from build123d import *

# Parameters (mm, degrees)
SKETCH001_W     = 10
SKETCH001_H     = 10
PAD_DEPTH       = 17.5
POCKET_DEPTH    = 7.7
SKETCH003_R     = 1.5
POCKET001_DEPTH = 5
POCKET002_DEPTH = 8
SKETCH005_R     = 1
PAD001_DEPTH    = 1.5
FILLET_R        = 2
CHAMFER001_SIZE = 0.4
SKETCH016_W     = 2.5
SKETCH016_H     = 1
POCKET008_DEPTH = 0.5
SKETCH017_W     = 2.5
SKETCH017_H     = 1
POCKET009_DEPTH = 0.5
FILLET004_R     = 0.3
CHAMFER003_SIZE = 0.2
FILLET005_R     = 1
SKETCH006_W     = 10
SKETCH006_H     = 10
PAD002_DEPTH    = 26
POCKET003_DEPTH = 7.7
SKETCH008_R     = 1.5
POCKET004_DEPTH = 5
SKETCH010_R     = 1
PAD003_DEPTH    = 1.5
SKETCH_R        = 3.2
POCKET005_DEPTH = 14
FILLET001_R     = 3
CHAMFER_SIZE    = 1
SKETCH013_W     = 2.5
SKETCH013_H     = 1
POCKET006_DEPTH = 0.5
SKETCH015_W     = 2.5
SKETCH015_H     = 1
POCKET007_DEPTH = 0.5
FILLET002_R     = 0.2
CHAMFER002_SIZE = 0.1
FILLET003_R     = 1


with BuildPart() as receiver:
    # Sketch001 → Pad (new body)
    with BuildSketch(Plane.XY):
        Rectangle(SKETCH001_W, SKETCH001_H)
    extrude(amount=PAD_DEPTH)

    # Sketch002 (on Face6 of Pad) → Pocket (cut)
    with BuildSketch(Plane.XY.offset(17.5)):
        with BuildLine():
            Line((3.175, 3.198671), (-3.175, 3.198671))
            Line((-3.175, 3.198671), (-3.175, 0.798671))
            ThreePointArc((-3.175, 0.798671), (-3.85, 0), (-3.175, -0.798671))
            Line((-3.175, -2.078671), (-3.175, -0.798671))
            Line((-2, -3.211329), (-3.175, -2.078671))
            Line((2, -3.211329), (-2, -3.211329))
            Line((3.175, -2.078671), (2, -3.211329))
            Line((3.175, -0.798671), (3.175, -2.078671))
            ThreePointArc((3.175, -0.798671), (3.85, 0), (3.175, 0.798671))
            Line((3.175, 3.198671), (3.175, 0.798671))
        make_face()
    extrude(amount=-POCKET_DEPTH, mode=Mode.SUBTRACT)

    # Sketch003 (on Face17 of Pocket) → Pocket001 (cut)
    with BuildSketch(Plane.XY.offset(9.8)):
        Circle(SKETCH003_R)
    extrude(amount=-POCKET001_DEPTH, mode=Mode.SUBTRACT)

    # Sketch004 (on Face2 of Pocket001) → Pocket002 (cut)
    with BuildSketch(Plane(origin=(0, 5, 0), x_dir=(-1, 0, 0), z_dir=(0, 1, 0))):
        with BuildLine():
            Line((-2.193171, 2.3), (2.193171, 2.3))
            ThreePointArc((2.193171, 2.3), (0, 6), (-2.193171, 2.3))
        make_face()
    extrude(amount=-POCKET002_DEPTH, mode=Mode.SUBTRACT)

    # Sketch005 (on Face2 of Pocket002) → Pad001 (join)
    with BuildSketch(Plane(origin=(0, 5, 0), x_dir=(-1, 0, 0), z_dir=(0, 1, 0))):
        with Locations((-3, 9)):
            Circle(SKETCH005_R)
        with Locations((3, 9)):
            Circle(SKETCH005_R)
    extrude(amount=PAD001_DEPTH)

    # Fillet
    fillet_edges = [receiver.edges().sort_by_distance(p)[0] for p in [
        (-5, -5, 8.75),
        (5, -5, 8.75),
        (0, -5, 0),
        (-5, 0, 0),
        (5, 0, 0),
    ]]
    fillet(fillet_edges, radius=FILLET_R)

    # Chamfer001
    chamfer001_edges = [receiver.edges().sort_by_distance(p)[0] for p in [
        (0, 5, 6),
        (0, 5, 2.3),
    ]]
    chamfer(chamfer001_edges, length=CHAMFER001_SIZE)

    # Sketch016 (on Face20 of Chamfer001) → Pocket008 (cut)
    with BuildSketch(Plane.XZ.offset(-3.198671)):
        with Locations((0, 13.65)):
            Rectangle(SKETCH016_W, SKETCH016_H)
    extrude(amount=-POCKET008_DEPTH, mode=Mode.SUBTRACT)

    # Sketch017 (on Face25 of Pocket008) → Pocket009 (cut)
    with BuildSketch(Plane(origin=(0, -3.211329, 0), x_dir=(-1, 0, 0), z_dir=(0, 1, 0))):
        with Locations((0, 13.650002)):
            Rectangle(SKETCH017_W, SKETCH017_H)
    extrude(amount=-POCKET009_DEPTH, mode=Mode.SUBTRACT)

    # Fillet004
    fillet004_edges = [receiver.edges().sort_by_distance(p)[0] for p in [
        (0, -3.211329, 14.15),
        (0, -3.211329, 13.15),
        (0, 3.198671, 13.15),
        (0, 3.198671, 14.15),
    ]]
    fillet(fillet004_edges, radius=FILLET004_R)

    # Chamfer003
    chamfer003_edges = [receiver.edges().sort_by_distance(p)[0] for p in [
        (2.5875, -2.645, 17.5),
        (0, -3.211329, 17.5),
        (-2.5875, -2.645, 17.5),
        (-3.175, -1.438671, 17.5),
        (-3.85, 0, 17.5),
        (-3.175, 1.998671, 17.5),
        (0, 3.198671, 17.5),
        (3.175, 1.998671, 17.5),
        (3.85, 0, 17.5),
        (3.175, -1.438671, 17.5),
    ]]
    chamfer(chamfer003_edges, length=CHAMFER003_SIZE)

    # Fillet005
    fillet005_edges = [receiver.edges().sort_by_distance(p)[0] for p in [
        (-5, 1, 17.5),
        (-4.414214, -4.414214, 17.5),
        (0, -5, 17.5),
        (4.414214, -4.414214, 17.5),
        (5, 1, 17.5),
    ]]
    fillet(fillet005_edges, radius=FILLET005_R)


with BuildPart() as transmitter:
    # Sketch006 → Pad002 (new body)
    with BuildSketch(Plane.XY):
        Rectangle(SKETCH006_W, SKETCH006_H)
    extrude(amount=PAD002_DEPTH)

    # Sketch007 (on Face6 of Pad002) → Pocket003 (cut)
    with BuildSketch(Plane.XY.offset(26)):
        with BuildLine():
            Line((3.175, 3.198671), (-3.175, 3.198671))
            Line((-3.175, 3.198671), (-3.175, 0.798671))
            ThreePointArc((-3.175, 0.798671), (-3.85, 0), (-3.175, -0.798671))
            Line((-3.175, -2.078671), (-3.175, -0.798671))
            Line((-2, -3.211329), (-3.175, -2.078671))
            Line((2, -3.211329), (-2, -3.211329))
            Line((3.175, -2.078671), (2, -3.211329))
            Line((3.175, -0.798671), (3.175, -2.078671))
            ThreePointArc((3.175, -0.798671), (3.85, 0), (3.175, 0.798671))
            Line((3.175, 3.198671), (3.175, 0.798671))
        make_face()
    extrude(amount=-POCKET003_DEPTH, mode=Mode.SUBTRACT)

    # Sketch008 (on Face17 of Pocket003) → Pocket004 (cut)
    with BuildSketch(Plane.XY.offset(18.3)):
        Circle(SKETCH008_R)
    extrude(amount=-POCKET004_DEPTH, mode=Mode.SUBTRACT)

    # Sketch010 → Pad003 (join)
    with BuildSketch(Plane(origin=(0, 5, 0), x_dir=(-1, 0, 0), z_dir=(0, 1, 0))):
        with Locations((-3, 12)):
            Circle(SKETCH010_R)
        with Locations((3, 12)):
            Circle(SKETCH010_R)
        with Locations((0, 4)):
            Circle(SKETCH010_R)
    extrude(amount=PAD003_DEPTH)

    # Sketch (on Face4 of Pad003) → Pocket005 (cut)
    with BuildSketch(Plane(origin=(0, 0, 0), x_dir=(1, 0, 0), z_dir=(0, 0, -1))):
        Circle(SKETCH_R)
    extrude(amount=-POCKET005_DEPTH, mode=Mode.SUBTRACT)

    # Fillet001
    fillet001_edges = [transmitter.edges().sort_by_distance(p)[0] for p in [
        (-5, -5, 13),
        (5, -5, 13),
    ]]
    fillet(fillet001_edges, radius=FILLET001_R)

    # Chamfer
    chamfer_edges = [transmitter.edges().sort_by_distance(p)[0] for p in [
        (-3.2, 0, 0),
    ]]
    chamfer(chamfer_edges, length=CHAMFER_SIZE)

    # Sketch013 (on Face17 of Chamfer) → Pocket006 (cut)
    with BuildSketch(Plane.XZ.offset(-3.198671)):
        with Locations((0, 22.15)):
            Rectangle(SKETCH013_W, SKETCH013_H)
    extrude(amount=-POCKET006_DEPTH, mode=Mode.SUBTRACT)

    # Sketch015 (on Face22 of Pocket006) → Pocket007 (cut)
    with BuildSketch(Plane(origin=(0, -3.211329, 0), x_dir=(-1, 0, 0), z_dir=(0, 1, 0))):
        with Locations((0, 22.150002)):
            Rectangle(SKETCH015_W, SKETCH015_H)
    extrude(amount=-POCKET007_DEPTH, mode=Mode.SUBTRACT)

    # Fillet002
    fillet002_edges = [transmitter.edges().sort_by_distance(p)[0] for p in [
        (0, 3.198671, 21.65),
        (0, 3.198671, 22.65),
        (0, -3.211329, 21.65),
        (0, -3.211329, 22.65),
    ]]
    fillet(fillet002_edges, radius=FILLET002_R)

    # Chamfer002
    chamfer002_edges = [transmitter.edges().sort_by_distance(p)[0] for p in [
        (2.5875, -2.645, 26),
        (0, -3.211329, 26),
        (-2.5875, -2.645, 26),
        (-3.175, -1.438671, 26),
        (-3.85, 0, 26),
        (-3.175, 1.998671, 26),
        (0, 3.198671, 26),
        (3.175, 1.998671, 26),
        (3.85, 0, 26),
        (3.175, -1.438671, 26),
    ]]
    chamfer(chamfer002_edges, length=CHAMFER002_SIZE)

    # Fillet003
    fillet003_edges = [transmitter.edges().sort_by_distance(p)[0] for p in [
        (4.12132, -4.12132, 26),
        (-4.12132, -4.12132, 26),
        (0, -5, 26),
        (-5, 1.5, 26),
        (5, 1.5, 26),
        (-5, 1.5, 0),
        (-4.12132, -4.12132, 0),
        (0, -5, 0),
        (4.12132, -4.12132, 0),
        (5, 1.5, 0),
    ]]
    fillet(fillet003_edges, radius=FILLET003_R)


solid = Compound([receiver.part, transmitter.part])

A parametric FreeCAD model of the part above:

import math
import FreeCAD as App
import Part
import Sketcher
from FreeCAD import Vector
Q = App.Units.Quantity


def edges_at(feature, points):
    """Names of the edges that pass closest to the given points."""
    edges = feature.Shape.Edges
    near = lambda p: min(range(len(edges)), key=lambda i: edges[i].distToShape(Part.Vertex(*p))[0])
    return sorted({f"Edge{near(p) + 1}" for p in points})

doc = App.newDocument("Part")
params = doc.addObject("Spreadsheet::Sheet", "Params")
for row, (alias, value) in enumerate([
    ("sketch1_width", "10 mm"),
    ("pad1_length", "17.5 mm"),
    ("sketch2_width", "4 mm"),
    ("sketch2_radius", "0.81 mm"),
    ("sketch2_height", "2.4 mm"),
    ("sketch2_width2", "6.35 mm"),
    ("sketch2_height2", "1.28 mm"),
    ("pocket1_length", "7.7 mm"),
    ("sketch3_diameter", "3 mm"),
    ("pocket2_length", "5 mm"),
    ("sketch4_radius", "2.5 mm"),
    ("pocket3_length", "8 mm"),
    ("sketch5_diameter", "2 mm"),
    ("pad2_length", "1.5 mm"),
    ("fillet_radius", "2 mm"),
    ("chamfer_size", "0.4 mm"),
    ("sketch6_height", "1 mm"),
    ("sketch6_width", "2.5 mm"),
    ("pocket4_length", "0.5 mm"),
    ("sketch7_height", "1 mm"),
    ("sketch7_width", "2.5 mm"),
    ("pocket5_length", "0.5 mm"),
    ("fillet2_radius", "0.3 mm"),
    ("chamfer2_size", "0.2 mm"),
    ("fillet3_radius", "1 mm"),
    ("sketch8_width", "10 mm"),
    ("pad3_length", "26 mm"),
    ("sketch9_width", "4 mm"),
    ("sketch9_radius", "0.81 mm"),
    ("sketch9_height", "2.4 mm"),
    ("sketch9_width2", "6.35 mm"),
    ("sketch9_height2", "1.28 mm"),
    ("pocket6_length", "7.7 mm"),
    ("sketch10_diameter", "3 mm"),
    ("pocket7_length", "5 mm"),
    ("sketch11_diameter", "2 mm"),
    ("pad4_length", "1.5 mm"),
    ("sketch12_diameter", "6.4 mm"),
    ("pocket8_length", "14 mm"),
    ("fillet4_radius", "3 mm"),
    ("chamfer3_size", "1 mm"),
    ("sketch13_height", "1 mm"),
    ("sketch13_width", "2.5 mm"),
    ("pocket9_length", "0.5 mm"),
    ("sketch14_height", "1 mm"),
    ("sketch14_width", "2.5 mm"),
    ("pocket10_length", "0.5 mm"),
    ("fillet5_radius", "0.2 mm"),
    ("chamfer4_size", "0.1 mm"),
    ("fillet6_radius", "1 mm"),
], start=1):
    params.set(f"A{row}", alias)
    params.set(f"B{row}", "=" + value)
    params.setAlias(f"B{row}", alias)

body = doc.addObject("PartDesign::Body", "Body")

# Sketch on XY plane
sketch1 = body.newObject("Sketcher::SketchObject", "Sketch")
sketch1.AttachmentSupport = (doc.getObject("XY_Plane"), [""])
sketch1.MapMode = "FlatFace"
sketch1.addGeometry([
    Part.LineSegment(Vector(-5, 5, 0), Vector(-5, -5, 0)),
    Part.LineSegment(Vector(-5, -5, 0), Vector(5, -5, 0)),
    Part.LineSegment(Vector(5, -5, 0), Vector(5, 5, 0)),
    Part.LineSegment(Vector(5, 5, 0), Vector(-5, 5, 0)),
], False)
sketch1.addConstraint([
    Sketcher.Constraint("Coincident", 0, 2, 1, 1),
    Sketcher.Constraint("Coincident", 1, 2, 2, 1),
    Sketcher.Constraint("Coincident", 2, 2, 3, 1),
    Sketcher.Constraint("Coincident", 3, 2, 0, 1),
    Sketcher.Constraint("Vertical", 0),
    Sketcher.Constraint("Horizontal", 1),
    Sketcher.Constraint("Vertical", 2),
    Sketcher.Constraint("Horizontal", 3),
    Sketcher.Constraint("Symmetric", 0, 2, 2, 2, -1, 1),
    Sketcher.Constraint("Equal", 3, 0),
    Sketcher.Constraint("DistanceX", 1, 1, 1, 2, Q("10 mm")),
])
sketch1.setExpression("Constraints[10]", "Params.sketch1_width")
pad1 = body.newObject("PartDesign::Pad", "Pad")
pad1.Profile = sketch1
pad1.setExpression("Length", "Params.pad1_length")

# Sketch on XY plane
sketch2 = body.newObject("Sketcher::SketchObject", "Sketch001")
sketch2.AttachmentSupport = (doc.getObject("XY_Plane"), [""])
sketch2.MapMode = "FlatFace"
sketch2.AttachmentOffset = App.Placement(Vector(0, 0, 17.5), App.Rotation())
sketch2.addGeometry([
    Part.LineSegment(Vector(3.2, 3.2, 0), Vector(-3.2, 3.2, 0)),  # 0
    Part.LineSegment(Vector(-3.2, 3.2, 0), Vector(-3.2, 0.8, 0)),  # 1
    Part.ArcOfCircle(Part.Circle(Vector(-3, 0, 0), Vector(0, 0, 1), 0.8), math.radians(100), math.radians(260)),  # 2
    Part.LineSegment(Vector(-3.2, -0.8, 0), Vector(-3.2, -2.1, 0)),  # 3
    Part.LineSegment(Vector(-3.2, -2.1, 0), Vector(-2, -3.2, 0)),  # 4
    Part.LineSegment(Vector(-2, -3.2, 0), Vector(2, -3.2, 0)),  # 5
    Part.LineSegment(Vector(2, -3.2, 0), Vector(3.2, -2.1, 0)),  # 6
    Part.LineSegment(Vector(3.2, -2.1, 0), Vector(3.2, -0.8, 0)),  # 7
    Part.ArcOfCircle(Part.Circle(Vector(3, 0, 0), Vector(0, 0, 1), 0.8), math.radians(-80), math.radians(80)),  # 8
    Part.LineSegment(Vector(3.2, 0.8, 0), Vector(3.2, 3.2, 0)),  # 9
], False)
sketch2.addConstraint([
    Sketcher.Constraint("Coincident", 0, 2, 1, 1),
    Sketcher.Constraint("Coincident", 1, 2, 2, 1),
    Sketcher.Constraint("Coincident", 2, 2, 3, 1),
    Sketcher.Constraint("Coincident", 3, 2, 4, 1),
    Sketcher.Constraint("Coincident", 4, 2, 5, 1),
    Sketcher.Constraint("Coincident", 5, 2, 6, 1),
    Sketcher.Constraint("Coincident", 6, 2, 7, 1),
    Sketcher.Constraint("Coincident", 7, 2, 8, 1),
    Sketcher.Constraint("Coincident", 8, 2, 9, 1),
    Sketcher.Constraint("Coincident", 9, 2, 0, 1),
    Sketcher.Constraint("Horizontal", 0),
    Sketcher.Constraint("Vertical", 1),
    Sketcher.Constraint("Vertical", 3),
    Sketcher.Constraint("Horizontal", 5),
    Sketcher.Constraint("Vertical", 7),
    Sketcher.Constraint("Vertical", 9),
    Sketcher.Constraint("Equal", 2, 8),
    Sketcher.Constraint("Symmetric", 2, 3, 8, 3, -1, 1),
    Sketcher.Constraint("Symmetric", 3, 2, 6, 2, -2),
    Sketcher.Constraint("Symmetric", 1, 2, 8, 2, -2),
    Sketcher.Constraint("Vertical", 1, 2, 2, 2),
    Sketcher.Constraint("Equal", 4, 6),
    Sketcher.Constraint("DistanceX", 5, 1, 5, 2, Q("4 mm")),
    Sketcher.Constraint("Radius", 2, Q("0.81 mm")),
    Sketcher.Constraint("DistanceY", 1, 2, 1, 1, Q("2.4 mm")),
    Sketcher.Constraint("DistanceX", 0, 2, 0, 1, Q("6.35 mm")),
    Sketcher.Constraint("DistanceY", 3, 2, 3, 1, Q("1.28 mm")),
    Sketcher.Constraint("DistanceX", 2, 3, -1, 1, Q("3.04 mm")),
    Sketcher.Constraint("DistanceY", 4, 2, 1, 2, Q("4.01 mm")),
])
sketch2.setExpression("Constraints[22]", "Params.sketch2_width")
sketch2.setExpression("Constraints[23]", "Params.sketch2_radius")
sketch2.setExpression("Constraints[24]", "Params.sketch2_height")
sketch2.setExpression("Constraints[25]", "Params.sketch2_width2")
sketch2.setExpression("Constraints[26]", "Params.sketch2_height2")
pocket1 = body.newObject("PartDesign::Pocket", "Pocket")
pocket1.Profile = sketch2
pocket1.setExpression("Length", "Params.pocket1_length")

# Sketch on XY plane
sketch3 = body.newObject("Sketcher::SketchObject", "Sketch002")
sketch3.AttachmentSupport = (doc.getObject("XY_Plane"), [""])
sketch3.MapMode = "FlatFace"
sketch3.AttachmentOffset = App.Placement(Vector(0, 0, 9.8), App.Rotation())
sketch3.addGeometry(Part.Circle(Vector(0, 0, 0), Vector(0, 0, 1), 1.5), False)
sketch3.addConstraint([
    Sketcher.Constraint("Coincident", 0, 3, -1, 1),
    Sketcher.Constraint("Diameter", 0, Q("3 mm")),
])
sketch3.setExpression("Constraints[1]", "Params.sketch3_diameter")
pocket2 = body.newObject("PartDesign::Pocket", "Pocket001")
pocket2.Profile = sketch3
pocket2.setExpression("Length", "Params.pocket2_length")

# Sketch on XZ plane
sketch4 = body.newObject("Sketcher::SketchObject", "Sketch003")
sketch4.AttachmentSupport = (doc.getObject("XZ_Plane"), [""])
sketch4.MapMode = "FlatFace"
sketch4.AttachmentOffset = App.Placement(Vector(0, 0, -5), App.Rotation())
sketch4.addGeometry([
    Part.LineSegment(Vector(2.2, 2.3, 0), Vector(-2.2, 2.3, 0)),
    Part.ArcOfCircle(Part.Circle(Vector(0, 3.5, 0), Vector(0, 0, 1), 2.5), math.radians(-29), math.radians(209)),
], False)
sketch4.addConstraint([
    Sketcher.Constraint("Coincident", 0, 1, 1, 1),
    Sketcher.Constraint("Coincident", 1, 2, 0, 2),
    Sketcher.Constraint("Horizontal", 0),
    Sketcher.Constraint("PointOnObject", 1, 3, -2),
    Sketcher.Constraint("Radius", 1, Q("2.5 mm")),
    Sketcher.Constraint("DistanceY", -1, 1, 1, 3, Q("3.5 mm")),
    Sketcher.Constraint("DistanceY", -1, 1, 0, 1, Q("2.3 mm")),
])
sketch4.setExpression("Constraints[4]", "Params.sketch4_radius")
pocket3 = body.newObject("PartDesign::Pocket", "Pocket002")
pocket3.Profile = sketch4
pocket3.setExpression("Length", "Params.pocket3_length")
pocket3.Reversed = True

# Sketch on XZ plane
sketch5 = body.newObject("Sketcher::SketchObject", "Sketch004")
sketch5.AttachmentSupport = (doc.getObject("XZ_Plane"), [""])
sketch5.MapMode = "FlatFace"
sketch5.AttachmentOffset = App.Placement(Vector(0, 0, -5), App.Rotation())
sketch5.addGeometry([
    Part.Circle(Vector(3, 9, 0), Vector(0, 0, 1), 1),
    Part.Circle(Vector(-3, 9, 0), Vector(0, 0, 1), 1),
], False)
sketch5.addConstraint([
    Sketcher.Constraint("Equal", 0, 1),
    Sketcher.Constraint("Symmetric", 0, 3, 1, 3, -2),
    Sketcher.Constraint("Diameter", 0, Q("2 mm")),
    Sketcher.Constraint("DistanceX", -1, 1, 0, 3, Q("3 mm")),
    Sketcher.Constraint("DistanceY", -1, 1, 0, 3, Q("9 mm")),
])
sketch5.setExpression("Constraints[2]", "Params.sketch5_diameter")
pad2 = body.newObject("PartDesign::Pad", "Pad001")
pad2.Profile = sketch5
pad2.setExpression("Length", "Params.pad2_length")
pad2.Reversed = True
doc.recompute()

fillet = body.newObject("PartDesign::Fillet", "Fillet")
fillet.Base = (pad2, edges_at(pad2, [
    (-5, -5, 8.75),
    (5, -5, 8.75),
    (0, -5, 0),
    (-5, 0, 0),
    (5, 0, 0),
]))
fillet.setExpression("Radius", "Params.fillet_radius")
doc.recompute()

chamfer = body.newObject("PartDesign::Chamfer", "Chamfer")
chamfer.Base = (fillet, edges_at(fillet, [(0, 5, 6), (0, 5, 2.3)]))
chamfer.setExpression("Size", "Params.chamfer_size")

# Sketch on XZ plane
sketch6 = body.newObject("Sketcher::SketchObject", "Sketch005")
sketch6.AttachmentSupport = (doc.getObject("XZ_Plane"), [""])
sketch6.MapMode = "FlatFace"
sketch6.AttachmentOffset = App.Placement(Vector(0, 0, -3.198671), App.Rotation())
sketch6.addGeometry([
    Part.LineSegment(Vector(-1.2, 14.2, 0), Vector(-1.2, 13.2, 0)),
    Part.LineSegment(Vector(-1.2, 13.2, 0), Vector(1.2, 13.2, 0)),
    Part.LineSegment(Vector(1.2, 13.2, 0), Vector(1.2, 14.2, 0)),
    Part.LineSegment(Vector(1.2, 14.2, 0), Vector(-1.2, 14.2, 0)),
], False)
sketch6.addConstraint([
    Sketcher.Constraint("Coincident", 0, 2, 1, 1),
    Sketcher.Constraint("Coincident", 1, 2, 2, 1),
    Sketcher.Constraint("Coincident", 2, 2, 3, 1),
    Sketcher.Constraint("Coincident", 3, 2, 0, 1),
    Sketcher.Constraint("Vertical", 0),
    Sketcher.Constraint("Horizontal", 1),
    Sketcher.Constraint("Vertical", 2),
    Sketcher.Constraint("Horizontal", 3),
    Sketcher.Constraint("DistanceY", 0, 2, 0, 1, Q("1 mm")),
    Sketcher.Constraint("DistanceX", 1, 1, 1, 2, Q("2.5 mm")),
    Sketcher.Constraint("DistanceX", 0, 2, -1, 1, Q("1.25 mm")),
    Sketcher.Constraint("DistanceY", -1, 1, 0, 2, Q("13.15 mm")),
])
sketch6.setExpression("Constraints[8]", "Params.sketch6_height")
sketch6.setExpression("Constraints[9]", "Params.sketch6_width")
pocket4 = body.newObject("PartDesign::Pocket", "Pocket003")
pocket4.Profile = sketch6
pocket4.setExpression("Length", "Params.pocket4_length")

# Sketch on XZ plane
sketch7 = body.newObject("Sketcher::SketchObject", "Sketch006")
sketch7.AttachmentSupport = (doc.getObject("XZ_Plane"), [""])
sketch7.MapMode = "FlatFace"
sketch7.AttachmentOffset = App.Placement(Vector(0, 0, 3.211329), App.Rotation())
sketch7.addGeometry([
    Part.LineSegment(Vector(1.2, 14.2, 0), Vector(1.2, 13.2, 0)),
    Part.LineSegment(Vector(1.2, 13.2, 0), Vector(-1.2, 13.2, 0)),
    Part.LineSegment(Vector(-1.2, 13.2, 0), Vector(-1.2, 14.2, 0)),
    Part.LineSegment(Vector(-1.2, 14.2, 0), Vector(1.2, 14.2, 0)),
], False)
sketch7.addConstraint([
    Sketcher.Constraint("Coincident", 0, 2, 1, 1),
    Sketcher.Constraint("Coincident", 1, 2, 2, 1),
    Sketcher.Constraint("Coincident", 2, 2, 3, 1),
    Sketcher.Constraint("Coincident", 3, 2, 0, 1),
    Sketcher.Constraint("Vertical", 0),
    Sketcher.Constraint("Horizontal", 1),
    Sketcher.Constraint("Vertical", 2),
    Sketcher.Constraint("Horizontal", 3),
    Sketcher.Constraint("DistanceY", 0, 2, 0, 1, Q("1 mm")),
    Sketcher.Constraint("DistanceX", 1, 2, 1, 1, Q("2.5 mm")),
    Sketcher.Constraint("DistanceX", -1, 1, 0, 2, Q("1.25 mm")),
    Sketcher.Constraint("DistanceY", -1, 1, 0, 2, Q("13.150002 mm")),
])
sketch7.setExpression("Constraints[8]", "Params.sketch7_height")
sketch7.setExpression("Constraints[9]", "Params.sketch7_width")
pocket5 = body.newObject("PartDesign::Pocket", "Pocket004")
pocket5.Profile = sketch7
pocket5.setExpression("Length", "Params.pocket5_length")
pocket5.Reversed = True
doc.recompute()

fillet2 = body.newObject("PartDesign::Fillet", "Fillet001")
fillet2.Base = (pocket5, edges_at(pocket5, [
    (0, -3.211, 14.15),
    (0, -3.211, 13.15),
    (0, 3.199, 13.15),
    (0, 3.199, 14.15),
]))
fillet2.setExpression("Radius", "Params.fillet2_radius")
doc.recompute()

chamfer2 = body.newObject("PartDesign::Chamfer", "Chamfer001")
chamfer2.Base = (fillet2, edges_at(fillet2, [
    (2.587, -2.645, 17.5),
    (0, -3.211, 17.5),
    (-2.587, -2.645, 17.5),
    (-3.175, -1.439, 17.5),
    (-3.85, 0, 17.5),
    (-3.175, 1.999, 17.5),
    (0, 3.199, 17.5),
    (3.175, 1.999, 17.5),
    (3.85, 0, 17.5),
    (3.175, -1.439, 17.5),
]))
chamfer2.setExpression("Size", "Params.chamfer2_size")
doc.recompute()

fillet3 = body.newObject("PartDesign::Fillet", "Fillet002")
fillet3.Base = (chamfer2, edges_at(chamfer2, [
    (-5, 1, 17.5),
    (-4.414, -4.414, 17.5),
    (0, -5, 17.5),
    (4.414, -4.414, 17.5),
    (5, 1, 17.5),
]))
fillet3.setExpression("Radius", "Params.fillet3_radius")
body2 = doc.addObject("PartDesign::Body", "Body001")

# Sketch on XY plane
sketch8 = body2.newObject("Sketcher::SketchObject", "Sketch007")
sketch8.AttachmentSupport = (doc.getObject("XY_Plane001"), [""])
sketch8.MapMode = "FlatFace"
sketch8.addGeometry([
    Part.LineSegment(Vector(-5, 5, 0), Vector(-5, -5, 0)),
    Part.LineSegment(Vector(-5, -5, 0), Vector(5, -5, 0)),
    Part.LineSegment(Vector(5, -5, 0), Vector(5, 5, 0)),
    Part.LineSegment(Vector(5, 5, 0), Vector(-5, 5, 0)),
], False)
sketch8.addConstraint([
    Sketcher.Constraint("Coincident", 0, 2, 1, 1),
    Sketcher.Constraint("Coincident", 1, 2, 2, 1),
    Sketcher.Constraint("Coincident", 2, 2, 3, 1),
    Sketcher.Constraint("Coincident", 3, 2, 0, 1),
    Sketcher.Constraint("Vertical", 0),
    Sketcher.Constraint("Horizontal", 1),
    Sketcher.Constraint("Vertical", 2),
    Sketcher.Constraint("Horizontal", 3),
    Sketcher.Constraint("Symmetric", 0, 2, 2, 2, -1, 1),
    Sketcher.Constraint("Equal", 3, 0),
    Sketcher.Constraint("DistanceX", 1, 1, 1, 2, Q("10 mm")),
])
sketch8.setExpression("Constraints[10]", "Params.sketch8_width")
pad3 = body2.newObject("PartDesign::Pad", "Pad002")
pad3.Profile = sketch8
pad3.setExpression("Length", "Params.pad3_length")

# Sketch on XY plane
sketch9 = body2.newObject("Sketcher::SketchObject", "Sketch008")
sketch9.AttachmentSupport = (doc.getObject("XY_Plane001"), [""])
sketch9.MapMode = "FlatFace"
sketch9.AttachmentOffset = App.Placement(Vector(0, 0, 26), App.Rotation())
sketch9.addGeometry([
    Part.LineSegment(Vector(3.2, 3.2, 0), Vector(-3.2, 3.2, 0)),  # 0
    Part.LineSegment(Vector(-3.2, 3.2, 0), Vector(-3.2, 0.8, 0)),  # 1
    Part.ArcOfCircle(Part.Circle(Vector(-3, 0, 0), Vector(0, 0, 1), 0.8), math.radians(100), math.radians(260)),  # 2
    Part.LineSegment(Vector(-3.2, -0.8, 0), Vector(-3.2, -2.1, 0)),  # 3
    Part.LineSegment(Vector(-3.2, -2.1, 0), Vector(-2, -3.2, 0)),  # 4
    Part.LineSegment(Vector(-2, -3.2, 0), Vector(2, -3.2, 0)),  # 5
    Part.LineSegment(Vector(2, -3.2, 0), Vector(3.2, -2.1, 0)),  # 6
    Part.LineSegment(Vector(3.2, -2.1, 0), Vector(3.2, -0.8, 0)),  # 7
    Part.ArcOfCircle(Part.Circle(Vector(3, 0, 0), Vector(0, 0, 1), 0.8), math.radians(-80), math.radians(80)),  # 8
    Part.LineSegment(Vector(3.2, 0.8, 0), Vector(3.2, 3.2, 0)),  # 9
], False)
sketch9.addConstraint([
    Sketcher.Constraint("Coincident", 0, 2, 1, 1),
    Sketcher.Constraint("Coincident", 1, 2, 2, 1),
    Sketcher.Constraint("Coincident", 2, 2, 3, 1),
    Sketcher.Constraint("Coincident", 3, 2, 4, 1),
    Sketcher.Constraint("Coincident", 4, 2, 5, 1),
    Sketcher.Constraint("Coincident", 5, 2, 6, 1),
    Sketcher.Constraint("Coincident", 6, 2, 7, 1),
    Sketcher.Constraint("Coincident", 7, 2, 8, 1),
    Sketcher.Constraint("Coincident", 8, 2, 9, 1),
    Sketcher.Constraint("Coincident", 9, 2, 0, 1),
    Sketcher.Constraint("Horizontal", 0),
    Sketcher.Constraint("Vertical", 1),
    Sketcher.Constraint("Vertical", 3),
    Sketcher.Constraint("Horizontal", 5),
    Sketcher.Constraint("Vertical", 7),
    Sketcher.Constraint("Vertical", 9),
    Sketcher.Constraint("Equal", 2, 8),
    Sketcher.Constraint("Symmetric", 2, 3, 8, 3, -1, 1),
    Sketcher.Constraint("Symmetric", 3, 2, 6, 2, -2),
    Sketcher.Constraint("Symmetric", 1, 2, 8, 2, -2),
    Sketcher.Constraint("Vertical", 1, 2, 2, 2),
    Sketcher.Constraint("Equal", 4, 6),
    Sketcher.Constraint("DistanceX", 5, 1, 5, 2, Q("4 mm")),
    Sketcher.Constraint("Radius", 2, Q("0.81 mm")),
    Sketcher.Constraint("DistanceY", 1, 2, 1, 1, Q("2.4 mm")),
    Sketcher.Constraint("DistanceX", 0, 2, 0, 1, Q("6.35 mm")),
    Sketcher.Constraint("DistanceY", 3, 2, 3, 1, Q("1.28 mm")),
    Sketcher.Constraint("DistanceX", 2, 3, -1, 1, Q("3.04 mm")),
    Sketcher.Constraint("DistanceY", 4, 2, 1, 2, Q("4.01 mm")),
])
sketch9.setExpression("Constraints[22]", "Params.sketch9_width")
sketch9.setExpression("Constraints[23]", "Params.sketch9_radius")
sketch9.setExpression("Constraints[24]", "Params.sketch9_height")
sketch9.setExpression("Constraints[25]", "Params.sketch9_width2")
sketch9.setExpression("Constraints[26]", "Params.sketch9_height2")
pocket6 = body2.newObject("PartDesign::Pocket", "Pocket005")
pocket6.Profile = sketch9
pocket6.setExpression("Length", "Params.pocket6_length")

# Sketch on XY plane
sketch10 = body2.newObject("Sketcher::SketchObject", "Sketch009")
sketch10.AttachmentSupport = (doc.getObject("XY_Plane001"), [""])
sketch10.MapMode = "FlatFace"
sketch10.AttachmentOffset = App.Placement(Vector(0, 0, 18.3), App.Rotation())
sketch10.addGeometry(Part.Circle(Vector(0, 0, 0), Vector(0, 0, 1), 1.5), False)
sketch10.addConstraint([
    Sketcher.Constraint("Coincident", 0, 3, -1, 1),
    Sketcher.Constraint("Diameter", 0, Q("3 mm")),
])
sketch10.setExpression("Constraints[1]", "Params.sketch10_diameter")
pocket7 = body2.newObject("PartDesign::Pocket", "Pocket006")
pocket7.Profile = sketch10
pocket7.setExpression("Length", "Params.pocket7_length")

# Sketch on XZ plane
sketch11 = body2.newObject("Sketcher::SketchObject", "Sketch010")
sketch11.AttachmentSupport = (doc.getObject("XZ_Plane001"), [""])
sketch11.MapMode = "FlatFace"
sketch11.AttachmentOffset = App.Placement(Vector(0, 0, -5), App.Rotation())
sketch11.addGeometry([
    Part.Circle(Vector(3, 12, 0), Vector(0, 0, 1), 1),
    Part.Circle(Vector(-3, 12, 0), Vector(0, 0, 1), 1),
    Part.Circle(Vector(0, 4, 0), Vector(0, 0, 1), 1),
], False)
sketch11.addConstraint([
    Sketcher.Constraint("Equal", 0, 1),
    Sketcher.Constraint("Equal", 1, 2),
    Sketcher.Constraint("Symmetric", 0, 3, 1, 3, -2),
    Sketcher.Constraint("PointOnObject", 2, 3, -2),
    Sketcher.Constraint("Diameter", 0, Q("2 mm")),
    Sketcher.Constraint("DistanceX", -1, 1, 0, 3, Q("3 mm")),
    Sketcher.Constraint("DistanceY", -1, 1, 0, 3, Q("12 mm")),
    Sketcher.Constraint("DistanceY", -1, 1, 2, 3, Q("4 mm")),
])
sketch11.setExpression("Constraints[4]", "Params.sketch11_diameter")
pad4 = body2.newObject("PartDesign::Pad", "Pad003")
pad4.Profile = sketch11
pad4.setExpression("Length", "Params.pad4_length")
pad4.Reversed = True

# Sketch on XY plane
sketch12 = body2.newObject("Sketcher::SketchObject", "Sketch011")
sketch12.AttachmentSupport = (doc.getObject("XY_Plane001"), [""])
sketch12.MapMode = "FlatFace"
sketch12.addGeometry(Part.Circle(Vector(0, 0, 0), Vector(0, 0, 1), 3.2), False)
sketch12.addConstraint([
    Sketcher.Constraint("Coincident", 0, 3, -1, 1),
    Sketcher.Constraint("Diameter", 0, Q("6.4 mm")),
])
sketch12.setExpression("Constraints[1]", "Params.sketch12_diameter")
pocket8 = body2.newObject("PartDesign::Pocket", "Pocket007")
pocket8.Profile = sketch12
pocket8.setExpression("Length", "Params.pocket8_length")
pocket8.Reversed = True
doc.recompute()

fillet4 = body2.newObject("PartDesign::Fillet", "Fillet003")
fillet4.Base = (pocket8, edges_at(pocket8, [(-5, -5, 13), (5, -5, 13)]))
fillet4.setExpression("Radius", "Params.fillet4_radius")
doc.recompute()

chamfer3 = body2.newObject("PartDesign::Chamfer", "Chamfer002")
chamfer3.Base = (fillet4, edges_at(fillet4, [(-3.2, 0, 0)]))
chamfer3.setExpression("Size", "Params.chamfer3_size")

# Sketch on XZ plane
sketch13 = body2.newObject("Sketcher::SketchObject", "Sketch012")
sketch13.AttachmentSupport = (doc.getObject("XZ_Plane001"), [""])
sketch13.MapMode = "FlatFace"
sketch13.AttachmentOffset = App.Placement(Vector(0, 0, -3.198671), App.Rotation())
sketch13.addGeometry([
    Part.LineSegment(Vector(-1.2, 22.6, 0), Vector(-1.2, 21.6, 0)),
    Part.LineSegment(Vector(-1.2, 21.6, 0), Vector(1.2, 21.6, 0)),
    Part.LineSegment(Vector(1.2, 21.6, 0), Vector(1.2, 22.6, 0)),
    Part.LineSegment(Vector(1.2, 22.6, 0), Vector(-1.2, 22.6, 0)),
], False)
sketch13.addConstraint([
    Sketcher.Constraint("Coincident", 0, 2, 1, 1),
    Sketcher.Constraint("Coincident", 1, 2, 2, 1),
    Sketcher.Constraint("Coincident", 2, 2, 3, 1),
    Sketcher.Constraint("Coincident", 3, 2, 0, 1),
    Sketcher.Constraint("Vertical", 0),
    Sketcher.Constraint("Horizontal", 1),
    Sketcher.Constraint("Vertical", 2),
    Sketcher.Constraint("Horizontal", 3),
    Sketcher.Constraint("DistanceY", 0, 2, 0, 1, Q("1 mm")),
    Sketcher.Constraint("DistanceX", 1, 1, 1, 2, Q("2.5 mm")),
    Sketcher.Constraint("DistanceX", 0, 2, -1, 1, Q("1.25 mm")),
    Sketcher.Constraint("DistanceY", -1, 1, 0, 2, Q("21.65 mm")),
])
sketch13.setExpression("Constraints[8]", "Params.sketch13_height")
sketch13.setExpression("Constraints[9]", "Params.sketch13_width")
pocket9 = body2.newObject("PartDesign::Pocket", "Pocket008")
pocket9.Profile = sketch13
pocket9.setExpression("Length", "Params.pocket9_length")

# Sketch on XZ plane
sketch14 = body2.newObject("Sketcher::SketchObject", "Sketch013")
sketch14.AttachmentSupport = (doc.getObject("XZ_Plane001"), [""])
sketch14.MapMode = "FlatFace"
sketch14.AttachmentOffset = App.Placement(Vector(0, 0, 3.211329), App.Rotation())
sketch14.addGeometry([
    Part.LineSegment(Vector(1.2, 22.7, 0), Vector(1.2, 21.7, 0)),
    Part.LineSegment(Vector(1.2, 21.7, 0), Vector(-1.2, 21.7, 0)),
    Part.LineSegment(Vector(-1.2, 21.7, 0), Vector(-1.2, 22.7, 0)),
    Part.LineSegment(Vector(-1.2, 22.7, 0), Vector(1.2, 22.7, 0)),
], False)
sketch14.addConstraint([
    Sketcher.Constraint("Coincident", 0, 2, 1, 1),
    Sketcher.Constraint("Coincident", 1, 2, 2, 1),
    Sketcher.Constraint("Coincident", 2, 2, 3, 1),
    Sketcher.Constraint("Coincident", 3, 2, 0, 1),
    Sketcher.Constraint("Vertical", 0),
    Sketcher.Constraint("Horizontal", 1),
    Sketcher.Constraint("Vertical", 2),
    Sketcher.Constraint("Horizontal", 3),
    Sketcher.Constraint("DistanceY", 0, 2, 0, 1, Q("1 mm")),
    Sketcher.Constraint("DistanceX", 1, 2, 1, 1, Q("2.5 mm")),
    Sketcher.Constraint("DistanceX", -1, 1, 0, 2, Q("1.25 mm")),
    Sketcher.Constraint("DistanceY", -1, 1, 0, 2, Q("21.650002 mm")),
])
sketch14.setExpression("Constraints[8]", "Params.sketch14_height")
sketch14.setExpression("Constraints[9]", "Params.sketch14_width")
pocket10 = body2.newObject("PartDesign::Pocket", "Pocket009")
pocket10.Profile = sketch14
pocket10.setExpression("Length", "Params.pocket10_length")
pocket10.Reversed = True
doc.recompute()

fillet5 = body2.newObject("PartDesign::Fillet", "Fillet004")
fillet5.Base = (pocket10, edges_at(pocket10, [
    (0, 3.199, 21.65),
    (0, 3.199, 22.65),
    (0, -3.211, 21.65),
    (0, -3.211, 22.65),
]))
fillet5.setExpression("Radius", "Params.fillet5_radius")
doc.recompute()

chamfer4 = body2.newObject("PartDesign::Chamfer", "Chamfer003")
chamfer4.Base = (fillet5, edges_at(fillet5, [
    (2.587, -2.645, 26),
    (0, -3.211, 26),
    (-2.587, -2.645, 26),
    (-3.175, -1.439, 26),
    (-3.85, 0, 26),
    (-3.175, 1.999, 26),
    (0, 3.199, 26),
    (3.175, 1.999, 26),
    (3.85, 0, 26),
    (3.175, -1.439, 26),
]))
chamfer4.setExpression("Size", "Params.chamfer4_size")
doc.recompute()

fillet6 = body2.newObject("PartDesign::Fillet", "Fillet005")
fillet6.Base = (chamfer4, edges_at(chamfer4, [
    (4.121, -4.121, 26),
    (-4.121, -4.121, 26),
    (0, -5, 26),
    (-5, 1.5, 26),
    (5, 1.5, 26),
    (-5, 1.5, 0),
    (-4.121, -4.121, 0),
    (0, -5, 0),
    (4.121, -4.121, 0),
    (5, 1.5, 0),
]))
fillet6.setExpression("Radius", "Params.fillet6_radius")

doc.recompute()
